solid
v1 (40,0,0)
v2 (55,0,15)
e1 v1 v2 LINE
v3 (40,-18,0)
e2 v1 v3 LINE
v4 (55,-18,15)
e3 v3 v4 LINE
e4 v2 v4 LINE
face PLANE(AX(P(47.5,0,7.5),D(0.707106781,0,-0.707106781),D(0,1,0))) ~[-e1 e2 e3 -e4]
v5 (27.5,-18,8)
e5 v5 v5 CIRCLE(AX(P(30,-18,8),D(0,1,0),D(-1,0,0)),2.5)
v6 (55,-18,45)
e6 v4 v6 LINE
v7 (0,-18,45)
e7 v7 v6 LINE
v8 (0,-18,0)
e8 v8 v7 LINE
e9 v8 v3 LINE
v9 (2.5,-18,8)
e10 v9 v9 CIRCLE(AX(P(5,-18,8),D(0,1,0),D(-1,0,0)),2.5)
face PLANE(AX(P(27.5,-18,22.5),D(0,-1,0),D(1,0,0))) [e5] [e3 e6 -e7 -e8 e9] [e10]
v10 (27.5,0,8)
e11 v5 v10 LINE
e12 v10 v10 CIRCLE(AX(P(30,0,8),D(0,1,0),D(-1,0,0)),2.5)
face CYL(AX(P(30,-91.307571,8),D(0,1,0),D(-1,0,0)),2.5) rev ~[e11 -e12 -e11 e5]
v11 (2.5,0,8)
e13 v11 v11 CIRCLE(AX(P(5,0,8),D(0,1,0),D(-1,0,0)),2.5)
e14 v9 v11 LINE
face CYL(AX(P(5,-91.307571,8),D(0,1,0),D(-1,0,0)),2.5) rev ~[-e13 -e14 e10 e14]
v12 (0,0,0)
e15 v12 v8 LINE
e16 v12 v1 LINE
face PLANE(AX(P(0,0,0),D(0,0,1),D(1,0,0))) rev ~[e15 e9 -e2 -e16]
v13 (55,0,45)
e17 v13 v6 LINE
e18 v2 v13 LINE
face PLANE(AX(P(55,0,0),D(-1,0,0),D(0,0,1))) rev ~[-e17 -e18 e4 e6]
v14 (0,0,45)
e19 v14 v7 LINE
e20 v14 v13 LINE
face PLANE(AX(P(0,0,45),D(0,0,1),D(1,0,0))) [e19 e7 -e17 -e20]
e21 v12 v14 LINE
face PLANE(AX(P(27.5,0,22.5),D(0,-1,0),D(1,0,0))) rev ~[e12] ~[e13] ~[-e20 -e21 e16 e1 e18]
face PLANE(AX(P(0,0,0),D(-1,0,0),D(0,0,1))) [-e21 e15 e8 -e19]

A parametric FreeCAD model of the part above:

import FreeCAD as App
import Part
import Sketcher


def edges_at(feature, points):
    """Names of the edges that pass closest to the given points."""
    edges = feature.Shape.Edges
    near = lambda p: min(range(len(edges)), key=lambda i: edges[i].distToShape(Part.Vertex(*p))[0])
    return sorted({f"Edge{near(p) + 1}" for p in points})


def add_polygon(sketch, points):
    """Adds a closed chain of lines whose ends are joined by coincident constraints."""
    first, n = sketch.GeometryCount, len(points)
    for a, b in zip(points, points[1:] + points[:1]):
        sketch.addGeometry(Part.LineSegment(App.Vector(*a, 0), App.Vector(*b, 0)), False)
    for i in range(n):
        sketch.addConstraint(Sketcher.Constraint("Coincident", first + i, 2, first + (i + 1) % n, 1))

doc = App.newDocument("Part")
params = doc.addObject("Spreadsheet::Sheet", "Params")
for row, (alias, value) in enumerate([
    ("sketch1_width", "55 mm"),
    ("sketch1_height", "45 mm"),
    ("pad1_length", "18 mm"),
    ("chamfer_size", "15 mm"),
    ("sketch2_diameter", "5 mm"),
    ("hole_diameter", "5 mm"),
], start=1):
    params.set(f"A{row}", alias)
    params.set(f"B{row}", "=" + value)
    params.setAlias(f"B{row}", alias)

body = doc.addObject("PartDesign::Body", "Body")

# Sketch on XZ plane
sketch1 = body.newObject("Sketcher::SketchObject", "Sketch")
sketch1.AttachmentSupport = (doc.getObject("XZ_Plane"), [""])
sketch1.MapMode = "FlatFace"
add_polygon(sketch1, [(0, 45), (0, 0), (55, 0), (55, 45)])  # lines 0-3
sketch1.addConstraint(Sketcher.Constraint("Vertical", 0))
sketch1.addConstraint(Sketcher.Constraint("Horizontal", 1))
sketch1.addConstraint(Sketcher.Constraint("Vertical", 2))
sketch1.addConstraint(Sketcher.Constraint("Horizontal", 3))
sketch1.addConstraint(Sketcher.Constraint("Coincident", 0, 2, -1, 1))
sketch1.addConstraint(Sketcher.Constraint("DistanceX", 1, 1, 1, 2, 55.0))
sketch1.addConstraint(Sketcher.Constraint("DistanceY", 0, 2, 0, 1, 45.0))
sketch1.setExpression("Constraints[9]", "Params.sketch1_width")
sketch1.setExpression("Constraints[10]", "Params.sketch1_height")
pad1 = body.newObject("PartDesign::Pad", "Pad")
pad1.Profile = sketch1
pad1.setExpression("Length", "Params.pad1_length")
doc.recompute()

chamfer = body.newObject("PartDesign::Chamfer", "Chamfer")
chamfer.Base = (pad1, edges_at(pad1, [(55, -9, 0)]))
chamfer.setExpression("Size", "Params.chamfer_size")

# Sketch on XZ plane
sketch2 = body.newObject("Sketcher::SketchObject", "Sketch001")
sketch2.AttachmentSupport = (doc.getObject("XZ_Plane"), [""])
sketch2.MapMode = "FlatFace"
sketch2.AttachmentOffset = App.Placement(App.Vector(0, 0, 18), App.Rotation())
sketch2.addGeometry(Part.Circle(App.Vector(30, 8, 0), App.Vector(0, 0, 1), 2.5), False)
sketch2.addGeometry(Part.Circle(App.Vector(5, 8, 0), App.Vector(0, 0, 1), 2.5), False)
sketch2.addConstraint(Sketcher.Constraint("Equal", 0, 1))
sketch2.addConstraint(Sketcher.Constraint("Horizontal", 0, 3, 1, 3))
sketch2.addConstraint(Sketcher.Constraint("Diameter", 0, 5.0))
sketch2.addConstraint(Sketcher.Constraint("DistanceX", -1, 1, 0, 3, 30.0))
sketch2.addConstraint(Sketcher.Constraint("DistanceY", -1, 1, 0, 3, 8.0))
sketch2.addConstraint(Sketcher.Constraint("DistanceX", -1, 1, 1, 3, 5.0))
sketch2.setExpression("Constraints[2]", "Params.sketch2_diameter")
doc.recompute()
hole = body.newObject("PartDesign::Hole", "Hole")
hole.Profile = sketch2
hole.ThreadType = "None"
hole.setExpression("Diameter", "Params.hole_diameter")
hole.DepthType = "ThroughAll"

doc.recompute()
